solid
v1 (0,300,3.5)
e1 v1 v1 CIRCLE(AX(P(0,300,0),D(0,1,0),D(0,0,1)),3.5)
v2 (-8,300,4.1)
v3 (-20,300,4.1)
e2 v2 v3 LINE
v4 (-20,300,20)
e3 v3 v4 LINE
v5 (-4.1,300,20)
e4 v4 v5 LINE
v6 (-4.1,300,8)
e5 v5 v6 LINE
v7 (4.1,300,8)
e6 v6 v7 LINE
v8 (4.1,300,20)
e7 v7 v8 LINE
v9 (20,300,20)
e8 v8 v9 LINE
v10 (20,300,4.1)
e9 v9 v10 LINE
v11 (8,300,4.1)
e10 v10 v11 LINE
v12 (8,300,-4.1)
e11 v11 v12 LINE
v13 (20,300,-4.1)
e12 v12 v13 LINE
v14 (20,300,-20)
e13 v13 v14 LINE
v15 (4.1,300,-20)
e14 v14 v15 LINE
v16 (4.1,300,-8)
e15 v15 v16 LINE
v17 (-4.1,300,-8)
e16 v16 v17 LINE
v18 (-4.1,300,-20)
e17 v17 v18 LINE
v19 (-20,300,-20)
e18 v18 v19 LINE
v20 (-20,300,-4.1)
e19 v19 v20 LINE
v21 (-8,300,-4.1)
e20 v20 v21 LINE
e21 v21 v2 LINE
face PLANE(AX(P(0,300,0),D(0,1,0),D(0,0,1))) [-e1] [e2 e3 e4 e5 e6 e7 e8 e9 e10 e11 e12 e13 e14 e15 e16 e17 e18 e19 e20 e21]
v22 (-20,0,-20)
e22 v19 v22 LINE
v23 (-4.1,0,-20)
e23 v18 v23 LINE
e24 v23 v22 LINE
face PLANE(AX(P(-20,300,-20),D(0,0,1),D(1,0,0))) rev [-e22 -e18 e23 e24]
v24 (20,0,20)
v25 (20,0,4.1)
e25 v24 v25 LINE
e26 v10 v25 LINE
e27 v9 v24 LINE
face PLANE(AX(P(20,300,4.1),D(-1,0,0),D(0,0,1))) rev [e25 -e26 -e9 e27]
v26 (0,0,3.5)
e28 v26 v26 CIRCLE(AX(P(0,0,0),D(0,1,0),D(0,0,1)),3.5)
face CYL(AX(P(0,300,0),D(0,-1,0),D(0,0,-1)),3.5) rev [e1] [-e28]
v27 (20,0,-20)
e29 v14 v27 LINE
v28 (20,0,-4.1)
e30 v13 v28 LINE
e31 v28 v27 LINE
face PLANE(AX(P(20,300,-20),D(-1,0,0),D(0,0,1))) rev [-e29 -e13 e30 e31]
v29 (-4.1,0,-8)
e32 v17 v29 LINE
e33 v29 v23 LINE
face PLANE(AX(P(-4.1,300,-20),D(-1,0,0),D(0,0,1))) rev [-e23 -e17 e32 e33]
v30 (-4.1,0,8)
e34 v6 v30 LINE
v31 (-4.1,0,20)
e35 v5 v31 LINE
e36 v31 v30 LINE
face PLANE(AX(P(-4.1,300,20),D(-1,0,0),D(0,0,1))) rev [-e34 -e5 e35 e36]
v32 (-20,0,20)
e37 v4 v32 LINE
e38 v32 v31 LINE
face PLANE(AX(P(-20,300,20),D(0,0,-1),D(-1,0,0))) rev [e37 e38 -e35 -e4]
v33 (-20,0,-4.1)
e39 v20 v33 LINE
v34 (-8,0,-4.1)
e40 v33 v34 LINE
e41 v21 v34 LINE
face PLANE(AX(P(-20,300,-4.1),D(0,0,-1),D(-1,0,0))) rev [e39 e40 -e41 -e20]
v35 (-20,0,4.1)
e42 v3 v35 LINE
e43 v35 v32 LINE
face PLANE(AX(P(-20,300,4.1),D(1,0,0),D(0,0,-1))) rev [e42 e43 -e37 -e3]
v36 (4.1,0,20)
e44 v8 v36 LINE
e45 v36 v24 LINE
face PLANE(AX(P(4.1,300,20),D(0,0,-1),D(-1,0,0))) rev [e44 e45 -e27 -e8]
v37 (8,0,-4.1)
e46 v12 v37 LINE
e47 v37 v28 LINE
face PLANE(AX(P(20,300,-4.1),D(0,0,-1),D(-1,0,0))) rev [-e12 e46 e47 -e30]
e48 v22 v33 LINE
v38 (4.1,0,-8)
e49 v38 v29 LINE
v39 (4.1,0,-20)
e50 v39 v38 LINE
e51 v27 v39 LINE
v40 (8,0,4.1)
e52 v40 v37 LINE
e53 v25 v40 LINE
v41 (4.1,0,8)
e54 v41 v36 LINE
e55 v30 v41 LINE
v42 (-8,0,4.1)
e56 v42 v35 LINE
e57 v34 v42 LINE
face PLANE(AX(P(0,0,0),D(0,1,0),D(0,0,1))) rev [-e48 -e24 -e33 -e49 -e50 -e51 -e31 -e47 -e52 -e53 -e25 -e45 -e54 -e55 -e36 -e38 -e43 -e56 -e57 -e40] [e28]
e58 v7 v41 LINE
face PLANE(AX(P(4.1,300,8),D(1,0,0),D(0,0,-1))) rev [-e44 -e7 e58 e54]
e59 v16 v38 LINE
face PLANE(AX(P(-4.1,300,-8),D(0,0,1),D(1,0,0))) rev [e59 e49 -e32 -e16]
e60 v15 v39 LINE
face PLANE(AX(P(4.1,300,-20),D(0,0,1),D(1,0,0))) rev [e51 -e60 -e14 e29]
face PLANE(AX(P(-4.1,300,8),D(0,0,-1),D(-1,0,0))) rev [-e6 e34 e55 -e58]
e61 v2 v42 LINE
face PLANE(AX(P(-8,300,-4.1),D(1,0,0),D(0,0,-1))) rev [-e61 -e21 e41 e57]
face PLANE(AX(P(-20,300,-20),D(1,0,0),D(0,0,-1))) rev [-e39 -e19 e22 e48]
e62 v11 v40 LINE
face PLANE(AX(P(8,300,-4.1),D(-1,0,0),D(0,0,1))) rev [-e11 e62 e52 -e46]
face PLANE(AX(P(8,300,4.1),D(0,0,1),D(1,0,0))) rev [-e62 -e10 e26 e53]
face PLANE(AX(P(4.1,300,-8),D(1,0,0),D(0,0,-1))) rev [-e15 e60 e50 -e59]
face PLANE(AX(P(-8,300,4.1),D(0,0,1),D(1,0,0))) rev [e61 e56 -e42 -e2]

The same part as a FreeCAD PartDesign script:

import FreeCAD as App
import Part
import Sketcher
from FreeCAD import Vector
Q = App.Units.Quantity

doc = App.newDocument("Part")
params = doc.addObject("Spreadsheet::Sheet", "Params")
for row, (alias, value) in enumerate([
    ("sketch1_diameter", "7 mm"),
    ("sketch1_width", "12 mm"),
    ("sketch1_width2", "8.2 mm"),
    ("sketch1_width3", "15.9 mm"),
    ("pad1_length", "300 mm"),
], start=1):
    params.set(f"A{row}", alias)
    params.set(f"B{row}", "=" + value)
    params.setAlias(f"B{row}", alias)

body = doc.addObject("PartDesign::Body", "Body")

sketch1 = doc.addObject("Sketcher::SketchObject", "Sketch")
body.addObject(sketch1)
sketch1.AttachmentSupport = (doc.XZ_Plane, [""])
sketch1.MapMode = "FlatFace"
sketch1.addGeometry([
    Part.LineSegment(Vector(-4.1, 20, 0), Vector(-4.1, 8, 0)),
    Part.LineSegment(Vector(-4.1, 8, 0), Vector(4.1, 8, 0)),
    Part.LineSegment(Vector(4.1, 8, 0), Vector(4.1, 20, 0)),
    Part.LineSegment(Vector(4.1, 20, 0), Vector(20, 20, 0)),
    Part.LineSegment(Vector(20, 20, 0), Vector(20, 4.1, 0)),
    Part.LineSegment(Vector(20, 4.1, 0), Vector(8, 4.1, 0)),
    Part.LineSegment(Vector(8, 4.1, 0), Vector(8, -4.1, 0)),
    Part.LineSegment(Vector(8, -4.1, 0), Vector(20, -4.1, 0)),
    Part.LineSegment(Vector(20, -4.1, 0), Vector(20, -20, 0)),
    Part.LineSegment(Vector(20, -20, 0), Vector(4.1, -20, 0)),
    Part.LineSegment(Vector(4.1, -20, 0), Vector(4.1, -8, 0)),
    Part.LineSegment(Vector(4.1, -8, 0), Vector(-4.1, -8, 0)),
    Part.LineSegment(Vector(-4.1, -8, 0), Vector(-4.1, -20, 0)),
    Part.LineSegment(Vector(-4.1, -20, 0), Vector(-20, -20, 0)),
    Part.LineSegment(Vector(-20, -20, 0), Vector(-20, -4.1, 0)),
    Part.LineSegment(Vector(-20, -4.1, 0), Vector(-8, -4.1, 0)),
    Part.LineSegment(Vector(-8, -4.1, 0), Vector(-8, 4.1, 0)),
    Part.LineSegment(Vector(-8, 4.1, 0), Vector(-20, 4.1, 0)),
    Part.LineSegment(Vector(-20, 4.1, 0), Vector(-20, 20, 0)),
    Part.LineSegment(Vector(-20, 20, 0), Vector(-4.1, 20, 0)),
    Part.Circle(Vector(0, 0, 0), Vector(0, 0, 1), 3.5),
], False)
sketch1.addConstraint([
    Sketcher.Constraint("Coincident", 0, 2, 1, 1),
    Sketcher.Constraint("Coincident", 1, 2, 2, 1),
    Sketcher.Constraint("Coincident", 2, 2, 3, 1),
    Sketcher.Constraint("Coincident", 3, 2, 4, 1),
    Sketcher.Constraint("Coincident", 4, 2, 5, 1),
    Sketcher.Constraint("Coincident", 5, 2, 6, 1),
    Sketcher.Constraint("Coincident", 6, 2, 7, 1),
    Sketcher.Constraint("Coincident", 7, 2, 8, 1),
    Sketcher.Constraint("Coincident", 8, 2, 9, 1),
    Sketcher.Constraint("Coincident", 9, 2, 10, 1),
    Sketcher.Constraint("Coincident", 10, 2, 11, 1),
    Sketcher.Constraint("Coincident", 11, 2, 12, 1),
    Sketcher.Constraint("Coincident", 12, 2, 13, 1),
    Sketcher.Constraint("Coincident", 13, 2, 14, 1),
    Sketcher.Constraint("Coincident", 14, 2, 15, 1),
    Sketcher.Constraint("Coincident", 15, 2, 16, 1),
    Sketcher.Constraint("Coincident", 16, 2, 17, 1),
    Sketcher.Constraint("Coincident", 17, 2, 18, 1),
    Sketcher.Constraint("Coincident", 18, 2, 19, 1),
    Sketcher.Constraint("Coincident", 19, 2, 0, 1),
    Sketcher.Constraint("Vertical", 0),
    Sketcher.Constraint("Horizontal", 1),
    Sketcher.Constraint("Vertical", 2),
    Sketcher.Constraint("Horizontal", 3),
    Sketcher.Constraint("Vertical", 4),
    Sketcher.Constraint("Horizontal", 5),
    Sketcher.Constraint("Vertical", 6),
    Sketcher.Constraint("Horizontal", 7),
    Sketcher.Constraint("Vertical", 8),
    Sketcher.Constraint("Horizontal", 9),
    Sketcher.Constraint("Vertical", 10),
    Sketcher.Constraint("Horizontal", 11),
    Sketcher.Constraint("Vertical", 12),
    Sketcher.Constraint("Horizontal", 13),
    Sketcher.Constraint("Vertical", 14),
    Sketcher.Constraint("Horizontal", 15),
    Sketcher.Constraint("Vertical", 16),
    Sketcher.Constraint("Horizontal", 17),
    Sketcher.Constraint("Vertical", 18),
    Sketcher.Constraint("Horizontal", 19),
    Sketcher.Constraint("Coincident", 20, 3, -1, 1),
    Sketcher.Constraint("Symmetric", 0, 2, 10, 2, -1, 1),
    Sketcher.Constraint("Symmetric", 2, 2, 12, 2, -1, 1),
    Sketcher.Constraint("Symmetric", 4, 2, 14, 2, -1, 1),
    Sketcher.Constraint("Symmetric", 6, 2, 16, 2, -1, 1),
    Sketcher.Constraint("Symmetric", 8, 2, 18, 2, -1, 1),
    Sketcher.Constraint("Symmetric", 9, 2, 12, 2, -2),
    Sketcher.Constraint("Symmetric", 7, 2, 14, 2, -2),
    Sketcher.Constraint("Equal", 17, 0),
    Sketcher.Constraint("Equal", 19, 4),
    Sketcher.Constraint("Equal", 11, 6),
    Sketcher.Constraint("Diameter", 20, Q("7 mm")),
    Sketcher.Constraint("DistanceX", 5, 2, 5, 1, Q("12 mm")),
    Sketcher.Constraint("DistanceX", 1, 1, 1, 2, Q("8.2 mm")),
    Sketcher.Constraint("DistanceX", 3, 1, 3, 2, Q("15.9 mm")),
])
sketch1.setExpression("Constraints[51]", "Params.sketch1_diameter")
sketch1.setExpression("Constraints[52]", "Params.sketch1_width")
sketch1.setExpression("Constraints[53]", "Params.sketch1_width2")
sketch1.setExpression("Constraints[54]", "Params.sketch1_width3")
pad1 = doc.addObject("PartDesign::Pad", "Pad")
body.addObject(pad1)
pad1.Profile = sketch1
pad1.setExpression("Length", "Params.pad1_length")
pad1.Reversed = True

doc.recompute()
